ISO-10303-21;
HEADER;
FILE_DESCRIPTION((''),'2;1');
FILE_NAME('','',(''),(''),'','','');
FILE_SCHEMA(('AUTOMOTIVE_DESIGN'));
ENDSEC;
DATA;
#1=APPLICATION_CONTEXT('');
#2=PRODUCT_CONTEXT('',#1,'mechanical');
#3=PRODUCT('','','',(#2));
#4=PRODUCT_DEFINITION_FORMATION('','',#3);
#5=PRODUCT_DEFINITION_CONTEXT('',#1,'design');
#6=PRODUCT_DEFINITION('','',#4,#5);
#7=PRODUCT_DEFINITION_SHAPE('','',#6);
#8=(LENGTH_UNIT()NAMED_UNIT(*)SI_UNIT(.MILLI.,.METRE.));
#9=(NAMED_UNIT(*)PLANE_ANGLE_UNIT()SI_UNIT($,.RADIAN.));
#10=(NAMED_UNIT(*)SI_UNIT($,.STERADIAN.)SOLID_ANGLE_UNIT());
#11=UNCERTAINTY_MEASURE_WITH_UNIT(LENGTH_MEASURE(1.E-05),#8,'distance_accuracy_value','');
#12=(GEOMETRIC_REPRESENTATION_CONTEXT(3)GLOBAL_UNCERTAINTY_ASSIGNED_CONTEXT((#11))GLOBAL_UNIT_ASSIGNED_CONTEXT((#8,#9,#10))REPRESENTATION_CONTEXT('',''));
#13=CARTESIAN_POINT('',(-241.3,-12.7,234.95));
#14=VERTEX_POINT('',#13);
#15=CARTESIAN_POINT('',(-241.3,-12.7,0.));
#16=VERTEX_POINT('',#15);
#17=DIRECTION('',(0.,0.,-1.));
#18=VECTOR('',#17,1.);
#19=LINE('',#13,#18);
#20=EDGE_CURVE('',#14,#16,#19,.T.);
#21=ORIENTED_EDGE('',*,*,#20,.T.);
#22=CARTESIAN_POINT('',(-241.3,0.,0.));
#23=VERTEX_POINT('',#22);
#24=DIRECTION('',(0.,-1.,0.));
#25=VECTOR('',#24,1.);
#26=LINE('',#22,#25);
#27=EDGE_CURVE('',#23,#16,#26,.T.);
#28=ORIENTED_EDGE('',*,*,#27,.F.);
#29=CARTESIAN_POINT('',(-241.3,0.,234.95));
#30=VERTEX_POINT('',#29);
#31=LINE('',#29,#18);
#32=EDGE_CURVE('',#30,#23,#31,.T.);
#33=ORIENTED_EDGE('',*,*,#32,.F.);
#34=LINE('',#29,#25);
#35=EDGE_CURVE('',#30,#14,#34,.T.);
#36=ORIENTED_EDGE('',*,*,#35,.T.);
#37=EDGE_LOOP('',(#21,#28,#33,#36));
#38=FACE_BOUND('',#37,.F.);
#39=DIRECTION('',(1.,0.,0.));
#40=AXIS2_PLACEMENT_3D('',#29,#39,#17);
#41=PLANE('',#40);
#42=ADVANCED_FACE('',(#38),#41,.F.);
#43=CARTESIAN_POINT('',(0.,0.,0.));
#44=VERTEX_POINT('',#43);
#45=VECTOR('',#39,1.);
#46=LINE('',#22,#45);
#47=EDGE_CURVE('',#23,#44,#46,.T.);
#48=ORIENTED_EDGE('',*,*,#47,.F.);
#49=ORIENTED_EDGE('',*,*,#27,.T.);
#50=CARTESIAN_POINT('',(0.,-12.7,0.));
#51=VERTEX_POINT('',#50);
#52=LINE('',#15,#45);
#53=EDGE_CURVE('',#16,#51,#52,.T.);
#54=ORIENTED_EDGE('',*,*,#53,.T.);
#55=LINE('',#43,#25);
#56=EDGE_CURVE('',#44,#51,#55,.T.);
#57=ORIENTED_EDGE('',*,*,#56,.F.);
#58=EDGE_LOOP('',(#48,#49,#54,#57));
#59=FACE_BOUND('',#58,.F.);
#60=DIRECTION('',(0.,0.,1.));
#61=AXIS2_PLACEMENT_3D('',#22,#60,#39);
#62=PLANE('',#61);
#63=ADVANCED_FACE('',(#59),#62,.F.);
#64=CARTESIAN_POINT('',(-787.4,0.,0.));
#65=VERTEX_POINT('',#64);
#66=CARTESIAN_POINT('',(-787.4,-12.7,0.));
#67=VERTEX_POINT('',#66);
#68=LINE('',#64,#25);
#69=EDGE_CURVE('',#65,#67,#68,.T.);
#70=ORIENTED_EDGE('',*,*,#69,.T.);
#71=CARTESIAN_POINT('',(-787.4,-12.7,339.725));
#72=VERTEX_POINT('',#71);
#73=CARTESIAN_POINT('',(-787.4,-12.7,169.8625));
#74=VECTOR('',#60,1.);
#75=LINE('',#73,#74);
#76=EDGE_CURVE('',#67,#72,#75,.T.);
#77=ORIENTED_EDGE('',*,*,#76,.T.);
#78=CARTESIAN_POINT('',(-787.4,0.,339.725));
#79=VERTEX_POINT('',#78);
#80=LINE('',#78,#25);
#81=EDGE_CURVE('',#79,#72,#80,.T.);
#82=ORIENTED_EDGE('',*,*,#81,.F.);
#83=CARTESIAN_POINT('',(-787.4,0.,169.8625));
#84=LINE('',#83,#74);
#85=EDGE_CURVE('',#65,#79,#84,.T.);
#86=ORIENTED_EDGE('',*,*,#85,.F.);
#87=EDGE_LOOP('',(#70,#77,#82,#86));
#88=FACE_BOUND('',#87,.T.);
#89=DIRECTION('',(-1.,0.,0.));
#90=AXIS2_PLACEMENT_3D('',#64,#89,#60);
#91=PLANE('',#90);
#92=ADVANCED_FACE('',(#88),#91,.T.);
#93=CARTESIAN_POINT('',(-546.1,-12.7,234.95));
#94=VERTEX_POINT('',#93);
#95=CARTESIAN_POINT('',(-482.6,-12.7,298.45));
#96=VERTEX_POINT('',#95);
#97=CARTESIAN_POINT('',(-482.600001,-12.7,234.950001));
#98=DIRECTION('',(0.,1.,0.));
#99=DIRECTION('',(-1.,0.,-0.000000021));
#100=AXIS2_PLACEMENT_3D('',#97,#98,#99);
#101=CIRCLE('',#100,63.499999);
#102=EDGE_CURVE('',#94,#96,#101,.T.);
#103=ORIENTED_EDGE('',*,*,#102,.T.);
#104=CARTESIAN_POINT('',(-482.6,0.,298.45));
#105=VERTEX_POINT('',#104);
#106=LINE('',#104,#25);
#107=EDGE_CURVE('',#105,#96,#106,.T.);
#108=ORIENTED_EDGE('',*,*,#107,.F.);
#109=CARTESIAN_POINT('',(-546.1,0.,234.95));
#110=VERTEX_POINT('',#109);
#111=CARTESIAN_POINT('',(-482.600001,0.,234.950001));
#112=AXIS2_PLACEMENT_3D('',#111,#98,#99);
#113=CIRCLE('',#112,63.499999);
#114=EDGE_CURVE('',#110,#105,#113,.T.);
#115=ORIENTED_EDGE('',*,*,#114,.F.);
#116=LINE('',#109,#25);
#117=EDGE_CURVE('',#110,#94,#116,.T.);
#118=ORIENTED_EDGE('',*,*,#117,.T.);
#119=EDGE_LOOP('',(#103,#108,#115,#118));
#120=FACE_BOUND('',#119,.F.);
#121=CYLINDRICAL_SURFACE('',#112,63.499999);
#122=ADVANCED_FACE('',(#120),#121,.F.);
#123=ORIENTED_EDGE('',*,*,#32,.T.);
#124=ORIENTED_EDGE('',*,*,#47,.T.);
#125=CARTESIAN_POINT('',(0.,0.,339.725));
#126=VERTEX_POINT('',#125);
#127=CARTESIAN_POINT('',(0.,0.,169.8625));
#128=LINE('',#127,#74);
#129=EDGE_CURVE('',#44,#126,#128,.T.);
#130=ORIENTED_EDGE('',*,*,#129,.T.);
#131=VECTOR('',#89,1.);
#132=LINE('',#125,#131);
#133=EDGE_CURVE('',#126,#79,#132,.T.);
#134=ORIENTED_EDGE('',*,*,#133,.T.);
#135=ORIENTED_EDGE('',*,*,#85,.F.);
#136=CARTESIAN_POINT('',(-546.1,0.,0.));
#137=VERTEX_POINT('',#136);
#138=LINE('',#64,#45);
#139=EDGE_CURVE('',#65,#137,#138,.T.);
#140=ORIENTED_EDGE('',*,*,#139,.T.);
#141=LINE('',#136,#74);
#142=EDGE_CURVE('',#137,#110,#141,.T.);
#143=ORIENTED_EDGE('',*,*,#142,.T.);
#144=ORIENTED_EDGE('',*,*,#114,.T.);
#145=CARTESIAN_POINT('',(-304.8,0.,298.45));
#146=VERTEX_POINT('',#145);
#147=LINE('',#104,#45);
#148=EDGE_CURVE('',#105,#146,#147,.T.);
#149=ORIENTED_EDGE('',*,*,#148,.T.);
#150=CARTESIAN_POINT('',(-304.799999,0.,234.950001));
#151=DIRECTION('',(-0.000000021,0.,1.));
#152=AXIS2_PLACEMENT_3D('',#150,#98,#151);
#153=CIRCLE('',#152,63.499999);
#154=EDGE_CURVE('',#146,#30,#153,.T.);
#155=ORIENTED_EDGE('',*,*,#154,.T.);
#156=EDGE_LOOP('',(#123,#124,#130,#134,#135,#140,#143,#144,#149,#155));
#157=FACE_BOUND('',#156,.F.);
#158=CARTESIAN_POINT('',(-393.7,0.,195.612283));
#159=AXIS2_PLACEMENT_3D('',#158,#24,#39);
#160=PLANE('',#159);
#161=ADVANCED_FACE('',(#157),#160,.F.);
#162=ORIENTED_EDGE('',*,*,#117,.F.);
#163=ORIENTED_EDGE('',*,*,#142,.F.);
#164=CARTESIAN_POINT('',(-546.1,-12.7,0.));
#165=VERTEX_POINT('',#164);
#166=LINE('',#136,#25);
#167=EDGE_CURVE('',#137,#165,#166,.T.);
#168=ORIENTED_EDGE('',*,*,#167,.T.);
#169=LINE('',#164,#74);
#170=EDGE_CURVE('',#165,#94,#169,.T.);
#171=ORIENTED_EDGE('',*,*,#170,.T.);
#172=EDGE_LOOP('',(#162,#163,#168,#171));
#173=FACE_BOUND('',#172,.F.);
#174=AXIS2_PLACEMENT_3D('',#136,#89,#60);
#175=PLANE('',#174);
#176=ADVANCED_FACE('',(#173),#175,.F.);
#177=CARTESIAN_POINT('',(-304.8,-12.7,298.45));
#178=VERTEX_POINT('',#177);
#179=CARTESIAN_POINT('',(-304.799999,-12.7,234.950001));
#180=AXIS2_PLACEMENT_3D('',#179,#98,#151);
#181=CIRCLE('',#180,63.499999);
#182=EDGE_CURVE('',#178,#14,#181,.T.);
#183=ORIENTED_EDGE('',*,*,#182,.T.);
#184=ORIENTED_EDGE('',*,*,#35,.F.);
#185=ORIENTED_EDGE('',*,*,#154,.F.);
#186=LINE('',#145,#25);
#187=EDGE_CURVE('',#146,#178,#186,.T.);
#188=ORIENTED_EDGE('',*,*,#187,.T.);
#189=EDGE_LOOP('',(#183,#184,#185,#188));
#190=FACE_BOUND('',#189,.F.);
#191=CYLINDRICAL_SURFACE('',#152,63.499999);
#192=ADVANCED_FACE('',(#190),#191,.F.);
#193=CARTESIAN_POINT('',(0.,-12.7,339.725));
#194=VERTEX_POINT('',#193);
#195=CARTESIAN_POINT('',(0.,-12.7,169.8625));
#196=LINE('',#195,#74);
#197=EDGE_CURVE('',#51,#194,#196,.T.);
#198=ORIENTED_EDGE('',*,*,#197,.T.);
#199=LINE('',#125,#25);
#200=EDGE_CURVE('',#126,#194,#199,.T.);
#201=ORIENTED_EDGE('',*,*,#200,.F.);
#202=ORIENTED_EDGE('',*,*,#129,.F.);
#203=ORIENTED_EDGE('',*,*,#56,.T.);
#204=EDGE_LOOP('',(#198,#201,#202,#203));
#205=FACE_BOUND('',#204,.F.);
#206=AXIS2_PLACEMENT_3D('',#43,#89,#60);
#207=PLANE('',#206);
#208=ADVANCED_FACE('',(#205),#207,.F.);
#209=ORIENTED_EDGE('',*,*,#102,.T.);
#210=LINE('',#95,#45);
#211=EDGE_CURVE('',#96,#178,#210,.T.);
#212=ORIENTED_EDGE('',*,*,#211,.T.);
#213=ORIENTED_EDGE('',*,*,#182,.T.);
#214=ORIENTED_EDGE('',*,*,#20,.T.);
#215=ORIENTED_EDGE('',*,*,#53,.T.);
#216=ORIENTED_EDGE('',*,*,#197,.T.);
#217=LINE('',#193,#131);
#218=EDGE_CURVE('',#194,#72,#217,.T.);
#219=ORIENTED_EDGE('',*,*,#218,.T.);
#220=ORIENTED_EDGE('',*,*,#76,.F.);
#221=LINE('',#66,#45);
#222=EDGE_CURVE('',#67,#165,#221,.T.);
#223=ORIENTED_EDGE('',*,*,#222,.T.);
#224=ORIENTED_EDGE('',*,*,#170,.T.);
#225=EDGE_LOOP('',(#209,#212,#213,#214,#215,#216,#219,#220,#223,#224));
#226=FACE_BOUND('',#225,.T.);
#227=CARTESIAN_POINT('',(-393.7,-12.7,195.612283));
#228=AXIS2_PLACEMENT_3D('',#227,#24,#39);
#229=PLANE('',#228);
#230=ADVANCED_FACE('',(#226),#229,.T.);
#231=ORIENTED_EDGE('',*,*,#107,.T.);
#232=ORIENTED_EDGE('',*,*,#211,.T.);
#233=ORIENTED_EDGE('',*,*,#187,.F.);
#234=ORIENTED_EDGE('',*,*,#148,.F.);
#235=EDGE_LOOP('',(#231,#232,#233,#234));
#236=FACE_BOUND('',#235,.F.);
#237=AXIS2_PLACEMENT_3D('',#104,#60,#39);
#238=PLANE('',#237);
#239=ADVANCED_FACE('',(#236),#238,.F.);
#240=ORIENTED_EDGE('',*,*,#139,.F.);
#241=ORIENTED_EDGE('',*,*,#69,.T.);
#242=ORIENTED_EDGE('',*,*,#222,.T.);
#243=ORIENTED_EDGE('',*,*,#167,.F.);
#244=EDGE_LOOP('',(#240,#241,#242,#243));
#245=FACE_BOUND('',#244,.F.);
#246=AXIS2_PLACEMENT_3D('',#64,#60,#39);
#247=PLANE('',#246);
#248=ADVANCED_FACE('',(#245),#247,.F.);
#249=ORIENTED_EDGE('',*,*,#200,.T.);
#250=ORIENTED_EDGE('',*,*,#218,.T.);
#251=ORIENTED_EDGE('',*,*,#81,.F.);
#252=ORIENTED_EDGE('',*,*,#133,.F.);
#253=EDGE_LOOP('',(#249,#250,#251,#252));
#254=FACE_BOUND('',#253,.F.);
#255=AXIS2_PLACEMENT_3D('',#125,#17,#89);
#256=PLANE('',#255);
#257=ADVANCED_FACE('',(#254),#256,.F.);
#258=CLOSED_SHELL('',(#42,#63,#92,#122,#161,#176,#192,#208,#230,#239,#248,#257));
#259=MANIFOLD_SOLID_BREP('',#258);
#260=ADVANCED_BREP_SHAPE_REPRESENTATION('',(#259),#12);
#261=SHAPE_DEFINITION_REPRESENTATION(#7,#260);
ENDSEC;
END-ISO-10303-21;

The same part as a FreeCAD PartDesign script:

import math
import FreeCAD as App
import Part
import Sketcher
Q = App.Units.Quantity

doc = App.newDocument("Part")
params = doc.addObject("Spreadsheet::Sheet", "Params")
for row, (alias, value) in enumerate([
    ("sketch1_radius", "2.4999999 in"),
    ("sketch1_width", "31 in"),
    ("sketch1_width2", "7 in"),
    ("sketch1_height", "9.25 in"),
    ("sketch1_height2", "13.375 in"),
    ("pad1_length", "0.5 in"),
], start=1):
    params.set(f"A{row}", alias)
    params.set(f"B{row}", "=" + value)
    params.setAlias(f"B{row}", alias)

body = doc.addObject("PartDesign::Body", "Body")

# Sketch on XZ plane
sketch1 = body.newObject("Sketcher::SketchObject", "Sketch")
sketch1.AttachmentSupport = (doc.getObject("XZ_Plane"), [""])
sketch1.MapMode = "FlatFace"
sketch1.addGeometry([
    Part.LineSegment(App.Vector(-241, 0, 0), App.Vector(0, 0, 0)),  # 0
    Part.LineSegment(App.Vector(0, 0, 0), App.Vector(0, 340, 0)),  # 1
    Part.LineSegment(App.Vector(0, 340, 0), App.Vector(-787, 340, 0)),  # 2
    Part.LineSegment(App.Vector(-787, 340, 0), App.Vector(-787, 0, 0)),  # 3
    Part.LineSegment(App.Vector(-787, 0, 0), App.Vector(-546, 0, 0)),  # 4
    Part.LineSegment(App.Vector(-546, 0, 0), App.Vector(-546, 235, 0)),  # 5
    Part.ArcOfCircle(Part.Circle(App.Vector(-483, 235, 0), App.Vector(0, 0, 1), 63), math.radians(90), math.radians(180)),  # 6
    Part.LineSegment(App.Vector(-483, 298, 0), App.Vector(-305, 298, 0)),  # 7
    Part.ArcOfCircle(Part.Circle(App.Vector(-305, 235, 0), App.Vector(0, 0, 1), 63), math.radians(0), math.radians(90)),  # 8
    Part.LineSegment(App.Vector(-241, 235, 0), App.Vector(-241, 0, 0)),  # 9
], False)
sketch1.addConstraint([
    Sketcher.Constraint("Coincident", 0, 2, 1, 1),
    Sketcher.Constraint("Coincident", 1, 2, 2, 1),
    Sketcher.Constraint("Coincident", 2, 2, 3, 1),
    Sketcher.Constraint("Coincident", 3, 2, 4, 1),
    Sketcher.Constraint("Coincident", 4, 2, 5, 1),
    Sketcher.Constraint("Tangent", 5, 2, 6, 2),
    Sketcher.Constraint("Tangent", 6, 1, 7, 1),
    Sketcher.Constraint("Tangent", 7, 2, 8, 2),
    Sketcher.Constraint("Tangent", 8, 1, 9, 1),
    Sketcher.Constraint("Coincident", 9, 2, 0, 1),
    Sketcher.Constraint("Horizontal", 0),
    Sketcher.Constraint("Vertical", 1),
    Sketcher.Constraint("Horizontal", 2),
    Sketcher.Constraint("Vertical", 3),
    Sketcher.Constraint("Horizontal", 4),
    Sketcher.Constraint("Vertical", 5),
    Sketcher.Constraint("Horizontal", 7),
    Sketcher.Constraint("Vertical", 9),
    Sketcher.Constraint("Coincident", 0, 2, -1, 1),
    Sketcher.Constraint("Equal", 6, 8),
    Sketcher.Constraint("PointOnObject", 3, 2, -1),
    Sketcher.Constraint("Equal", 0, 4),
    Sketcher.Constraint("Radius", 6, Q("2.4999999 in")),
    Sketcher.Constraint("DistanceX", 2, 2, 2, 1, Q("31 in")),
    Sketcher.Constraint("DistanceX", 7, 1, 7, 2, Q("7 in")),
    Sketcher.Constraint("DistanceY", 5, 1, 5, 2, Q("9.25 in")),
    Sketcher.Constraint("DistanceY", 1, 1, 1, 2, Q("13.375 in")),
])
sketch1.setExpression("Constraints[22]", "Params.sketch1_radius")
sketch1.setExpression("Constraints[23]", "Params.sketch1_width")
sketch1.setExpression("Constraints[24]", "Params.sketch1_width2")
sketch1.setExpression("Constraints[25]", "Params.sketch1_height")
sketch1.setExpression("Constraints[26]", "Params.sketch1_height2")
pad1 = body.newObject("PartDesign::Pad", "Pad")
pad1.Profile = sketch1
pad1.setExpression("Length", "Params.pad1_length")

doc.recompute()
